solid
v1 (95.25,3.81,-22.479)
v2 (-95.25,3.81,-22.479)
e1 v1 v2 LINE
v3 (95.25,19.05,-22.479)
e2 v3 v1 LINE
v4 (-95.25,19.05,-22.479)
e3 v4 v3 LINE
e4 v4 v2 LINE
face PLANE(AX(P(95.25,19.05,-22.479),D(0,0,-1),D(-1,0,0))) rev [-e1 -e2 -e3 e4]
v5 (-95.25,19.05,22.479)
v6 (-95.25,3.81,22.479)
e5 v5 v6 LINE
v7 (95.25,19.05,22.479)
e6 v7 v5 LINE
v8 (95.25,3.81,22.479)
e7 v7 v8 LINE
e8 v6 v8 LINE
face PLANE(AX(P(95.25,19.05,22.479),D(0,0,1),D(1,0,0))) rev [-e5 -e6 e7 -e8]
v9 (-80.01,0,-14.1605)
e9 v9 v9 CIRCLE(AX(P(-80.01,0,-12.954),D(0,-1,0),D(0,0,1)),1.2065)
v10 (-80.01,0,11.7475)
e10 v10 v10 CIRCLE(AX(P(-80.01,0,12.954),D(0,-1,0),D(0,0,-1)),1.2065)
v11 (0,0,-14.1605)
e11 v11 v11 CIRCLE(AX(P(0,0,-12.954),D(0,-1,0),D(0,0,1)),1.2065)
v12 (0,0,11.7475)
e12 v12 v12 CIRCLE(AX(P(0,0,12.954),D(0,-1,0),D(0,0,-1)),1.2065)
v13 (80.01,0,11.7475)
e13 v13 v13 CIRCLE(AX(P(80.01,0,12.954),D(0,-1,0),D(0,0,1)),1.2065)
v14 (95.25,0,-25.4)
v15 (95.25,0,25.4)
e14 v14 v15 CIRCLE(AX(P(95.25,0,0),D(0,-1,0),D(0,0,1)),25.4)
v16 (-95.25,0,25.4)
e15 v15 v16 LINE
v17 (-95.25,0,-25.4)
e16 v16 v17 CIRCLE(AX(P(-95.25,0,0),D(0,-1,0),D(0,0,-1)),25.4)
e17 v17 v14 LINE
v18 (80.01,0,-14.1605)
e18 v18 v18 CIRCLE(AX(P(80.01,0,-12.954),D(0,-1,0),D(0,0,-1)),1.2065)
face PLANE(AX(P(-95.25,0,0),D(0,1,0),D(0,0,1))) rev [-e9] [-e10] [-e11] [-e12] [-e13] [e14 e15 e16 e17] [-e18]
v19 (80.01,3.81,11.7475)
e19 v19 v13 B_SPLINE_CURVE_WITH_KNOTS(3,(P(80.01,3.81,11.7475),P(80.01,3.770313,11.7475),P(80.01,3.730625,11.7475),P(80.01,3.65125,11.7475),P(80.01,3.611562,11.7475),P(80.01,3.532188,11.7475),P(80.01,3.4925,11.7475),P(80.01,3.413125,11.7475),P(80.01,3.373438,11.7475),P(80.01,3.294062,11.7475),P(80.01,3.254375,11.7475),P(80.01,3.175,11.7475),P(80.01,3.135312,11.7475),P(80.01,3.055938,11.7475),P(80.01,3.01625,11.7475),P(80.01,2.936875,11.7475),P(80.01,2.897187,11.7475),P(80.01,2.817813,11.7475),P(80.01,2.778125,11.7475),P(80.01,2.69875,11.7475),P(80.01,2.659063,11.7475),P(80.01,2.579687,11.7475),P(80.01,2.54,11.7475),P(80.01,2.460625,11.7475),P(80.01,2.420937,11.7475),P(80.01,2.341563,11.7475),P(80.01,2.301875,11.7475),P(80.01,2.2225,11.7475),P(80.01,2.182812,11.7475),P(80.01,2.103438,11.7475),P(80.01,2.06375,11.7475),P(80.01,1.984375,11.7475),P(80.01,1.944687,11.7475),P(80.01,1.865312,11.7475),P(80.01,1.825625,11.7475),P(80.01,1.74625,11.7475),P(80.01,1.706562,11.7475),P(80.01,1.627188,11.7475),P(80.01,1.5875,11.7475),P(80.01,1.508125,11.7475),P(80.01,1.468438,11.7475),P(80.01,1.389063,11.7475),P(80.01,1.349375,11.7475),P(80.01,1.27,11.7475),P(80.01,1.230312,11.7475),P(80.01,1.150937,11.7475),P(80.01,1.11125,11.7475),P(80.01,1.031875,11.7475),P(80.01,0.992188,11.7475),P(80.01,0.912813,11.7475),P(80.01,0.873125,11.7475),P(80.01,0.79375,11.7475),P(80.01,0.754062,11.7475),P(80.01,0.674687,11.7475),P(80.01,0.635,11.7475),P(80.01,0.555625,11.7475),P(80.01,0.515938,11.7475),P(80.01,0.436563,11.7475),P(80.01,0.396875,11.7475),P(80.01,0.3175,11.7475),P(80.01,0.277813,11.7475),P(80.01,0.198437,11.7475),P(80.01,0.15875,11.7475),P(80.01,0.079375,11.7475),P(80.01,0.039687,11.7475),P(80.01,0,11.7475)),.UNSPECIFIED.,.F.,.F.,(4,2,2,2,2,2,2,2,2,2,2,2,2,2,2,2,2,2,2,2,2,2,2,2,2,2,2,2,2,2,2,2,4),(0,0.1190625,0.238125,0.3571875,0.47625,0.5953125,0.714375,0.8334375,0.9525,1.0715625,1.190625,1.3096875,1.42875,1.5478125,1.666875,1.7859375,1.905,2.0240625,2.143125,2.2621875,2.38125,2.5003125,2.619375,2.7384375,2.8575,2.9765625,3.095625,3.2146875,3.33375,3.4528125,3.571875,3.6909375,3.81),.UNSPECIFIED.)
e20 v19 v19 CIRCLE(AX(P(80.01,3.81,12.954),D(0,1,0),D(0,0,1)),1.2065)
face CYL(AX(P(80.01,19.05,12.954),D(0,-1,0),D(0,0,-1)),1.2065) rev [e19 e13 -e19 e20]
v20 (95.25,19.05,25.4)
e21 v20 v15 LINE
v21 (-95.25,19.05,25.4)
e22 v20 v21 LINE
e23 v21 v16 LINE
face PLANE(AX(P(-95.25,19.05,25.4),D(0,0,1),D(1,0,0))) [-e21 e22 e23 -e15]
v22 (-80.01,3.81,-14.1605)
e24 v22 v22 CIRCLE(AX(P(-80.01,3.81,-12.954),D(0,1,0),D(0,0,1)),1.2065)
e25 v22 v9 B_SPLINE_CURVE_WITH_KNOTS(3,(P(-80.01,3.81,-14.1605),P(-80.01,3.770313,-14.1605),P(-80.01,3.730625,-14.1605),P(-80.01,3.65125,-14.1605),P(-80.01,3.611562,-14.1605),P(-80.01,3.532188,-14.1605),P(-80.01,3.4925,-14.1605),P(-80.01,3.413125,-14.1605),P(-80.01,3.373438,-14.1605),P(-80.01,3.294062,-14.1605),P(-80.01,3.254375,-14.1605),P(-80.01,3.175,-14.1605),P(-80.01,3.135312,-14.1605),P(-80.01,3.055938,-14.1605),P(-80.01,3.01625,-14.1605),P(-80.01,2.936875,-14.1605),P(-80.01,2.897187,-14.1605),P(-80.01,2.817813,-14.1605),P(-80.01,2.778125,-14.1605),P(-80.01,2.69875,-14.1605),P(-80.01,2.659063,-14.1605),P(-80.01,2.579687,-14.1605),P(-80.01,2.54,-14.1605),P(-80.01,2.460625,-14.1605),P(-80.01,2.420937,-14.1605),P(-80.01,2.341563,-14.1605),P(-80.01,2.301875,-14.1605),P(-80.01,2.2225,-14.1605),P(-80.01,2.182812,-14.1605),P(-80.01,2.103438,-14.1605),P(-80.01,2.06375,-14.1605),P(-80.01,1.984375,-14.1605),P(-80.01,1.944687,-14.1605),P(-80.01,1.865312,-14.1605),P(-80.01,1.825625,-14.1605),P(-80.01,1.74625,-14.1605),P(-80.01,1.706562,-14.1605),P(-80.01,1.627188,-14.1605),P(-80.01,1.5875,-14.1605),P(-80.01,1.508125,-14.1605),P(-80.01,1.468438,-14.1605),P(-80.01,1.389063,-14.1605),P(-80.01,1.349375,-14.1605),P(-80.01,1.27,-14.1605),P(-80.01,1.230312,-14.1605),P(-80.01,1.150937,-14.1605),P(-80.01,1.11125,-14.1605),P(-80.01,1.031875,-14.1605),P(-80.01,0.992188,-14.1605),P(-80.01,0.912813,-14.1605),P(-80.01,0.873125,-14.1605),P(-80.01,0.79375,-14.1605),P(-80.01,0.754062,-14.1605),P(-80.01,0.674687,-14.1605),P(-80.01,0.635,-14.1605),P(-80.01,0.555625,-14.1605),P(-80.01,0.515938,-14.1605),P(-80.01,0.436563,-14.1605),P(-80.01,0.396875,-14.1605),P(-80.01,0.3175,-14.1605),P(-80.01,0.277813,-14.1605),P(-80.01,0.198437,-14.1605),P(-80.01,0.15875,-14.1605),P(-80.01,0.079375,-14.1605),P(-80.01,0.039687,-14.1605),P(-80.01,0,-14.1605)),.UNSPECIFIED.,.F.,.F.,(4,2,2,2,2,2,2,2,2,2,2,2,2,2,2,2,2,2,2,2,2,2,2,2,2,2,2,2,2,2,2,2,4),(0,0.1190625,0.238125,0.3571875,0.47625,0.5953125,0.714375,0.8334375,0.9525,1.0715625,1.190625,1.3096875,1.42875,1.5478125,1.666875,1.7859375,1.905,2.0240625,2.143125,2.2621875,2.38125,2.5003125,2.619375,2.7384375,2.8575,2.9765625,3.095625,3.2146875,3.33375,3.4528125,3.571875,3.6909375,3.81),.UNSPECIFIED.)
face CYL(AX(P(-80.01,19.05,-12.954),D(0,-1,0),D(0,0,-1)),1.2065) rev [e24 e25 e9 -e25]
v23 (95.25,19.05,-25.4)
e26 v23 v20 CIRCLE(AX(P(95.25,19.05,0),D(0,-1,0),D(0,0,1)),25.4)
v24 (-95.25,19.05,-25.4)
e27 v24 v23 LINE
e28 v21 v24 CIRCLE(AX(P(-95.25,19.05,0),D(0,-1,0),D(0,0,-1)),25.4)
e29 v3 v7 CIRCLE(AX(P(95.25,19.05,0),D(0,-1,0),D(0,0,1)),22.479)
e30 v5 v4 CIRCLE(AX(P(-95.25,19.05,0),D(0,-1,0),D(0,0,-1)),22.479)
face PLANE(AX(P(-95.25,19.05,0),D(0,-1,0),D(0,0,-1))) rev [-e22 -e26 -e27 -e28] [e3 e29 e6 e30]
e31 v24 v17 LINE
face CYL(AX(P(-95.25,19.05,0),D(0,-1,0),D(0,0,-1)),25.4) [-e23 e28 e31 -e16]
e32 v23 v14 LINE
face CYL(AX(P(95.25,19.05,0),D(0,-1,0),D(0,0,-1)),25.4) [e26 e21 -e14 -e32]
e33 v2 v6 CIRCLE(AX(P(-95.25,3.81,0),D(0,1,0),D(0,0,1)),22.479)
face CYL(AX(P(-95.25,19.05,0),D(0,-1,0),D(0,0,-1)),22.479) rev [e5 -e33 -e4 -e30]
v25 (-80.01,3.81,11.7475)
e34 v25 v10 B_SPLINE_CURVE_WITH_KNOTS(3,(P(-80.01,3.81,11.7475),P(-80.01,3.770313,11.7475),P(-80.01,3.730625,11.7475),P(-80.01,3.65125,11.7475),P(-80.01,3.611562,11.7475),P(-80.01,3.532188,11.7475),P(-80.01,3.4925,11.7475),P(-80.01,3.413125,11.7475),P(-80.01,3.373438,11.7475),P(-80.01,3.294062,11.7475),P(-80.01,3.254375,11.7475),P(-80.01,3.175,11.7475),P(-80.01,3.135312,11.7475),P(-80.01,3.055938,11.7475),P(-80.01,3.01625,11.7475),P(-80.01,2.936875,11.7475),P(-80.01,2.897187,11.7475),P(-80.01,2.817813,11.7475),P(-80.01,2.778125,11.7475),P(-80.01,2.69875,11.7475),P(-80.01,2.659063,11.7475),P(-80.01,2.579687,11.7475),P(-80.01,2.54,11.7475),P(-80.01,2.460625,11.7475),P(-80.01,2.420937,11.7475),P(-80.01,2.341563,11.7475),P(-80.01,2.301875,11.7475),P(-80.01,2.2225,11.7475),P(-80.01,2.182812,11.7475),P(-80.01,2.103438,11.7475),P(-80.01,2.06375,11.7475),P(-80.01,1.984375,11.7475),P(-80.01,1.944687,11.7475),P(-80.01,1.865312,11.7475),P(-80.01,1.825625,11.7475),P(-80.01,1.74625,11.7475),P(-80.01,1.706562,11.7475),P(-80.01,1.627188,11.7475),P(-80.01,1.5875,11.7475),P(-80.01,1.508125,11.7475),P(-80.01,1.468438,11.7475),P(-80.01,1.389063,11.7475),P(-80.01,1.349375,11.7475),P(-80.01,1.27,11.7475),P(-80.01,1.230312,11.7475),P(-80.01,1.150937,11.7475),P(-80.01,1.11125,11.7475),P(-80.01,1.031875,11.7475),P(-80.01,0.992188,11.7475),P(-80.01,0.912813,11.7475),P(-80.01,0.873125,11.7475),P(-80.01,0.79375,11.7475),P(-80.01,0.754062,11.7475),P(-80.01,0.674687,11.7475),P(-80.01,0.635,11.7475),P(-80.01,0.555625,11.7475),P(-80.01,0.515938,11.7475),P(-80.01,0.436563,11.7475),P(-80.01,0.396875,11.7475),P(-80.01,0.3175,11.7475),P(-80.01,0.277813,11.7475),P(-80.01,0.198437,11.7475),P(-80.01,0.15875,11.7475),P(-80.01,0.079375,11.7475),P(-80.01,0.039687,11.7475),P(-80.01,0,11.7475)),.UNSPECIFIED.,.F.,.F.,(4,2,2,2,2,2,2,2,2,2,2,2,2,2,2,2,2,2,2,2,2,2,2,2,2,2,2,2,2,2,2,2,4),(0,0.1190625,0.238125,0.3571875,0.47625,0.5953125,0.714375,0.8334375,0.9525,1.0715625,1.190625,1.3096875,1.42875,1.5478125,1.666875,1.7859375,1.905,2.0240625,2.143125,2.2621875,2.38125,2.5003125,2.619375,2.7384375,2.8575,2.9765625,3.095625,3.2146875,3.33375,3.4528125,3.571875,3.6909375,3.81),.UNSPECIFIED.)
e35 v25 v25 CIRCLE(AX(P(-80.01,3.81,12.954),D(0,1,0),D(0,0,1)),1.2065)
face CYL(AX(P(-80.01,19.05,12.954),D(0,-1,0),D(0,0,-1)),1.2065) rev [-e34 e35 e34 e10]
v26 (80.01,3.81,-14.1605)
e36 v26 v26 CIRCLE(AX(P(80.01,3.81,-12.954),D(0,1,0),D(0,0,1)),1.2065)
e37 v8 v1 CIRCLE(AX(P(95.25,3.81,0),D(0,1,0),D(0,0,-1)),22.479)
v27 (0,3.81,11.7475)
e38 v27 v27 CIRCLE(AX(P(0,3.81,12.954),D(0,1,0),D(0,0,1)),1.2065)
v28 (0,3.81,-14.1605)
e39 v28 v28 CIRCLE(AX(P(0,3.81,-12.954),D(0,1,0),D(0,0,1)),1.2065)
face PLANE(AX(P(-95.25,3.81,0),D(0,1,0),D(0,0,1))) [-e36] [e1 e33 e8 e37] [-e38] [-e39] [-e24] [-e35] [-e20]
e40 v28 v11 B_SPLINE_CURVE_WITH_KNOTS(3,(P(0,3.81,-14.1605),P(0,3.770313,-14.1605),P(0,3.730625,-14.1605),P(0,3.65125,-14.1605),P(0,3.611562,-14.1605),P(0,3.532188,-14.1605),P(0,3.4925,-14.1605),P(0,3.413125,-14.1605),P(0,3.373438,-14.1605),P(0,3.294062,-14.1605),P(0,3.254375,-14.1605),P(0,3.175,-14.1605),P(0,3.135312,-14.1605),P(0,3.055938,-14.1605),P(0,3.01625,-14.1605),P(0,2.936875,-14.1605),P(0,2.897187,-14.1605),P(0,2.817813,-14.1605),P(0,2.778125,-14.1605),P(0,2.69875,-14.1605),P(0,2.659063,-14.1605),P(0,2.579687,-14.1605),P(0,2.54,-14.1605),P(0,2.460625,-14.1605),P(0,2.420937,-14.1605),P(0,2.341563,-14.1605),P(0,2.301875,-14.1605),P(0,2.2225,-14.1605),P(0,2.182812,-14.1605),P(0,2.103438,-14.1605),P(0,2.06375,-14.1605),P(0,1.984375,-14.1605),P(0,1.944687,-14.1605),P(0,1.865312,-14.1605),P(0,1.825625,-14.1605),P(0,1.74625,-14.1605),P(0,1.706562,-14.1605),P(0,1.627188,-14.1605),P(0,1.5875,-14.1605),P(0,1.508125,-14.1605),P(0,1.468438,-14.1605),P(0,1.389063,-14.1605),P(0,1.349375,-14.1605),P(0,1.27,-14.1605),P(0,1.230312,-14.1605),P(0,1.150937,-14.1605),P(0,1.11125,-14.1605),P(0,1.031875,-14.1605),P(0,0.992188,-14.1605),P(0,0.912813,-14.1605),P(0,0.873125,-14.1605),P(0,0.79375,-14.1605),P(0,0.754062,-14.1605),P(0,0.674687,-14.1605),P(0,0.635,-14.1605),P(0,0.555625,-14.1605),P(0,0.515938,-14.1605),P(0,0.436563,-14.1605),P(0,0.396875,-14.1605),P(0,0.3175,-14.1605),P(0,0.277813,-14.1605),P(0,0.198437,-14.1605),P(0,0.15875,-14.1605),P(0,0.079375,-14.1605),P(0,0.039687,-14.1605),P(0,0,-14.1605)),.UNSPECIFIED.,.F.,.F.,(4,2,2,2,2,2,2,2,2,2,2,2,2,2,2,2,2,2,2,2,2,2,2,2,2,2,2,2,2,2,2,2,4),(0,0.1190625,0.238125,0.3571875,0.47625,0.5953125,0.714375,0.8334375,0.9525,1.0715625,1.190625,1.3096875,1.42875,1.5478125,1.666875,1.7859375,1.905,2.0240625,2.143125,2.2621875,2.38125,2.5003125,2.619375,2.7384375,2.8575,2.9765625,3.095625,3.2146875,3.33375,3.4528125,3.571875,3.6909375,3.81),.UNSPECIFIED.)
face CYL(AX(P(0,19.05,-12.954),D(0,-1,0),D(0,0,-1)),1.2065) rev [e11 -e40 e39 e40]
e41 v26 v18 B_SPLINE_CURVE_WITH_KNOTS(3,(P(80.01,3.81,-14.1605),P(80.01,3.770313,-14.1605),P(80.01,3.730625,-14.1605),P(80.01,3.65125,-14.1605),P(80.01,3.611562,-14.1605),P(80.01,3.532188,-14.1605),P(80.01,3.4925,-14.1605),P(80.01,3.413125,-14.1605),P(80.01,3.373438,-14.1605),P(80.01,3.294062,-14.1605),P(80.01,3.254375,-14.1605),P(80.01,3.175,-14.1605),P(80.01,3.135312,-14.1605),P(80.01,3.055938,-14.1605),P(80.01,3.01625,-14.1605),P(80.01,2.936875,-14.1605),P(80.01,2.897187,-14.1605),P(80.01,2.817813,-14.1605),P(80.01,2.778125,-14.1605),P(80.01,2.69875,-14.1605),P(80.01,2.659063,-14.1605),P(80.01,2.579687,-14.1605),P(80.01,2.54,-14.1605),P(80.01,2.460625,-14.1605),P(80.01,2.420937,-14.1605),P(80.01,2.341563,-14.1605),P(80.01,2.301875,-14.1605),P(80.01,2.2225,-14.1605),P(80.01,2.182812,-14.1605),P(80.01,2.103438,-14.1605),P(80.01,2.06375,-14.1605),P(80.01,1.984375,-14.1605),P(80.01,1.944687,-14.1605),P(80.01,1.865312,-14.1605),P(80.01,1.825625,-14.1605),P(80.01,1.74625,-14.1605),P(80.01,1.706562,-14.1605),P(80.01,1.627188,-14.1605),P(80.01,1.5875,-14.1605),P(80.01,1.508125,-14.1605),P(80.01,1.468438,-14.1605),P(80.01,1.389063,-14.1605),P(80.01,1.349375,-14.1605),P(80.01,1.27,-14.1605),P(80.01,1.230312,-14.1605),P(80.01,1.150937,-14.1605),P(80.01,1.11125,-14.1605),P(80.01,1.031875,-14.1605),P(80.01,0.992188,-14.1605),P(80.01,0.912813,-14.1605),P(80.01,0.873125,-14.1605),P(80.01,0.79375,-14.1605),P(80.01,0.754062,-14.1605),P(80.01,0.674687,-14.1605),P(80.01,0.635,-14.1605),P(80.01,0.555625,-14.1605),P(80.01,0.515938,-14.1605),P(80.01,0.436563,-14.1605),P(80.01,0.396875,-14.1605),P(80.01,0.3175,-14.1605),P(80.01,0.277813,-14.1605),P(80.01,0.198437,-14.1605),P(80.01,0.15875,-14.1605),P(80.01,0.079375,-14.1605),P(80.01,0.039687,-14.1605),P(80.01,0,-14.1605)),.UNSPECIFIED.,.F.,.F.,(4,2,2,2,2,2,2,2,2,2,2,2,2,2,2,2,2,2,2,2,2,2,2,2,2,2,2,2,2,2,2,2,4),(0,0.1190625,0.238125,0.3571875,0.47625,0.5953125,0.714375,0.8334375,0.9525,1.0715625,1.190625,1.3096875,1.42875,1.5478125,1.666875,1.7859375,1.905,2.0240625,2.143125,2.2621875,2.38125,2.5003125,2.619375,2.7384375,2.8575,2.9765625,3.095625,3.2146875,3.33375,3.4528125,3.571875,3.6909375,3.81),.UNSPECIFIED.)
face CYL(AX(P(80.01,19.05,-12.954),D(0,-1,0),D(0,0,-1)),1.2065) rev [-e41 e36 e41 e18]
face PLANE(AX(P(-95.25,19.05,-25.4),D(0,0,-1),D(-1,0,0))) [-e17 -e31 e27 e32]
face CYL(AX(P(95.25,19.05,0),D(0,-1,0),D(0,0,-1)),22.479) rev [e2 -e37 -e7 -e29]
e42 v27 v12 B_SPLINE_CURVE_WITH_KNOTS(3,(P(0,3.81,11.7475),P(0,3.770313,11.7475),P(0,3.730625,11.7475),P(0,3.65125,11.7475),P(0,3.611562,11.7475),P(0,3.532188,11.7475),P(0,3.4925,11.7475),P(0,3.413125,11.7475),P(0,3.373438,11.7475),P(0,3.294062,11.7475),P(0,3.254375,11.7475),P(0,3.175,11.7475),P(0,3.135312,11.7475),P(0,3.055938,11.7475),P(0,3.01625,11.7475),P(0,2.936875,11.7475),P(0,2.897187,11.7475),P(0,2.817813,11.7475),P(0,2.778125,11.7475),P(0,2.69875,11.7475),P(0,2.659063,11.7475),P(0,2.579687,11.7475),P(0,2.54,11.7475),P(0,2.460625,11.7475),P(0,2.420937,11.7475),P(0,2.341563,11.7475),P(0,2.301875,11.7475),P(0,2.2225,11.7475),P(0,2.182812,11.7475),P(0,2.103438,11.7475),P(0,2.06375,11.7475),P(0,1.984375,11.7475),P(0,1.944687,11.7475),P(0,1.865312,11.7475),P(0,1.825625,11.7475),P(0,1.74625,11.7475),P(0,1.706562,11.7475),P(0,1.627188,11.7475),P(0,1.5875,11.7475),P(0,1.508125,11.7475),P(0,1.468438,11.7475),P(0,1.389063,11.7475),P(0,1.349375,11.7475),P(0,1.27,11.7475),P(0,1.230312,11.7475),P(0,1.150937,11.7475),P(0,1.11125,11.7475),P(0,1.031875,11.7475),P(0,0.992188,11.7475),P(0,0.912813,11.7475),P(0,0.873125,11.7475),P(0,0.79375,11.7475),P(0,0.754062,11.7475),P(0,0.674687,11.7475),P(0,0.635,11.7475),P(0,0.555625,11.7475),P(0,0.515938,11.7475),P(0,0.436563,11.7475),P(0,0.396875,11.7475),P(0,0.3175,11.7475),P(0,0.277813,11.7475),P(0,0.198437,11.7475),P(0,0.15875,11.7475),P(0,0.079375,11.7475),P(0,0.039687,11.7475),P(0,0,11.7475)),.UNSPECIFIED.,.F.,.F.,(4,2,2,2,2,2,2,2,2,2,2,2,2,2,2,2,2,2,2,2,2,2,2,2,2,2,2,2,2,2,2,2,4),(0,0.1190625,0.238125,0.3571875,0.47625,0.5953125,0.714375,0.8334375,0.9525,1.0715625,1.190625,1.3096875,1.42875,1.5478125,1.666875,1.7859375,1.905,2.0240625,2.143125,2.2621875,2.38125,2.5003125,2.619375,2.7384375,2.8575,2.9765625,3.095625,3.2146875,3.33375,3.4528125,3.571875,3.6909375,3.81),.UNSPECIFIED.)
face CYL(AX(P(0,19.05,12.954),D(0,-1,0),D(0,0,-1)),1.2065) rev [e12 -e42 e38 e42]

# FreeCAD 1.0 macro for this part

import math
import FreeCAD as App
import Part
import Sketcher
from FreeCAD import Vector
Q = App.Units.Quantity

doc = App.newDocument("Part")
body = doc.addObject("PartDesign::Body", "Body")

sketch1 = doc.addObject("Sketcher::SketchObject", "Sketch")
body.addObject(sketch1)
sketch1.AttachmentSupport = (doc.XZ_Plane, [""])
sketch1.MapMode = "FlatFace"
sketch1.addGeometry(Part.LineSegment(Vector(95, -22, 0), Vector(-95, -22, 0)), False)
sketch1.addGeometry(Part.ArcOfCircle(Part.Circle(Vector(-95, 0, 0), Vector(0, 0, 1), 22), math.radians(90), math.radians(270)), False)
sketch1.addGeometry(Part.LineSegment(Vector(-95, 22, 0), Vector(95, 22, 0)), False)
sketch1.addGeometry(Part.ArcOfCircle(Part.Circle(Vector(95, 0, 0), Vector(0, 0, 1), 22), math.radians(-90), math.radians(90)), False)
sketch1.addConstraint(Sketcher.Constraint("Tangent", 0, 2, 1, 2))
sketch1.addConstraint(Sketcher.Constraint("Tangent", 1, 1, 2, 1))
sketch1.addConstraint(Sketcher.Constraint("Tangent", 2, 2, 3, 2))
sketch1.addConstraint(Sketcher.Constraint("Tangent", 3, 1, 0, 1))
sketch1.addConstraint(Sketcher.Constraint("Horizontal", 0))
sketch1.addConstraint(Sketcher.Constraint("Horizontal", 2))
sketch1.addConstraint(Sketcher.Constraint("Symmetric", 1, 3, 3, 3, -1, 1))
sketch1.addConstraint(Sketcher.Constraint("DistanceX", 0, 2, 0, 1, Q("7.5 in")))
sketch1.addConstraint(Sketcher.Constraint("Radius", 1, Q("0.885 in")))
pad1 = doc.addObject("PartDesign::Pad", "Pad")
body.addObject(pad1)
pad1.Profile = sketch1
pad1.Length = Q("0.15 in")
pad1.Reversed = True

sketch2 = doc.addObject("Sketcher::SketchObject", "Sketch001")
body.addObject(sketch2)
sketch2.AttachmentSupport = (doc.XZ_Plane, [""])
sketch2.MapMode = "FlatFace"
sketch2.addGeometry(Part.LineSegment(Vector(95, 25, 0), Vector(-95, 25, 0)), False)
sketch2.addGeometry(Part.ArcOfCircle(Part.Circle(Vector(-95, 0, 0), Vector(0, 0, 1), 25), math.radians(90), math.radians(270)), False)
sketch2.addGeometry(Part.LineSegment(Vector(-95, -25, 0), Vector(95, -25, 0)), False)
sketch2.addGeometry(Part.ArcOfCircle(Part.Circle(Vector(95, 0, 0), Vector(0, 0, 1), 25), math.radians(-90), math.radians(90)), False)
sketch2.addGeometry(Part.ArcOfCircle(Part.Circle(Vector(95, 0, 0), Vector(0, 0, 1), 22), math.radians(-90), math.radians(90)), False)
sketch2.addGeometry(Part.LineSegment(Vector(95, -22, 0), Vector(-95, -22, 0)), False)
sketch2.addGeometry(Part.ArcOfCircle(Part.Circle(Vector(-95, 0, 0), Vector(0, 0, 1), 22), math.radians(90), math.radians(270)), False)
sketch2.addGeometry(Part.LineSegment(Vector(-95, 22, 0), Vector(95, 22, 0)), False)
sketch2.addConstraint(Sketcher.Constraint("Tangent", 0, 2, 1, 1))
sketch2.addConstraint(Sketcher.Constraint("Tangent", 1, 2, 2, 1))
sketch2.addConstraint(Sketcher.Constraint("Tangent", 2, 2, 3, 1))
sketch2.addConstraint(Sketcher.Constraint("Tangent", 3, 2, 0, 1))
sketch2.addConstraint(Sketcher.Constraint("Tangent", 4, 1, 5, 1))
sketch2.addConstraint(Sketcher.Constraint("Tangent", 5, 2, 6, 2))
sketch2.addConstraint(Sketcher.Constraint("Tangent", 6, 1, 7, 1))
sketch2.addConstraint(Sketcher.Constraint("Tangent", 7, 2, 4, 2))
sketch2.addConstraint(Sketcher.Constraint("Horizontal", 0))
sketch2.addConstraint(Sketcher.Constraint("Horizontal", 2))
sketch2.addConstraint(Sketcher.Constraint("Horizontal", 5))
sketch2.addConstraint(Sketcher.Constraint("Horizontal", 7))
sketch2.addConstraint(Sketcher.Constraint("Coincident", 4, 3, 3, 3))
sketch2.addConstraint(Sketcher.Constraint("Symmetric", 1, 3, 3, 3, -1, 1))
sketch2.addConstraint(Sketcher.Constraint("Vertical", 6, 3, 0, 2))
sketch2.addConstraint(Sketcher.Constraint("Radius", 1, Q("1 in")))
sketch2.addConstraint(Sketcher.Constraint("DistanceX", 0, 2, 0, 1, Q("7.5 in")))
sketch2.addConstraint(Sketcher.Constraint("Radius", 4, Q("0.885 in")))
pad2 = doc.addObject("PartDesign::Pad", "Pad001")
body.addObject(pad2)
pad2.Profile = sketch2
pad2.Length = Q("0.75 in")
pad2.Reversed = True

sketch3 = doc.addObject("Sketcher::SketchObject", "Sketch002")
body.addObject(sketch3)
sketch3.AttachmentSupport = (doc.XZ_Plane, [""])
sketch3.MapMode = "FlatFace"
sketch3.addGeometry(Part.Circle(Vector(0, 13, 0), Vector(0, 0, 1), 1.2), False)
sketch3.addGeometry(Part.Circle(Vector(-80, 13, 0), Vector(0, 0, 1), 1.2), False)
sketch3.addGeometry(Part.Circle(Vector(80, 13, 0), Vector(0, 0, 1), 1.2), False)
sketch3.addGeometry(Part.Circle(Vector(80, -13, 0), Vector(0, 0, 1), 1.2), False)
sketch3.addGeometry(Part.Circle(Vector(-80, -13, 0), Vector(0, 0, 1), 1.2), False)
sketch3.addGeometry(Part.Circle(Vector(0, -13, 0), Vector(0, 0, 1), 1.2), False)
sketch3.addConstraint(Sketcher.Constraint("Equal", 0, 1))
sketch3.addConstraint(Sketcher.Constraint("Equal", 1, 2))
sketch3.addConstraint(Sketcher.Constraint("Equal", 2, 3))
sketch3.addConstraint(Sketcher.Constraint("Equal", 3, 4))
sketch3.addConstraint(Sketcher.Constraint("Equal", 4, 5))
sketch3.addConstraint(Sketcher.Constraint("Symmetric", 1, 3, 3, 3, -1, 1))
sketch3.addConstraint(Sketcher.Constraint("Symmetric", 2, 3, 4, 3, -1, 1))
sketch3.addConstraint(Sketcher.Constraint("Symmetric", 0, 3, 5, 3, -1, 1))
sketch3.addConstraint(Sketcher.Constraint("Symmetric", 1, 3, 2, 3, -2))
sketch3.addConstraint(Sketcher.Constraint("PointOnObject", 0, 3, -2))
sketch3.addConstraint(Sketcher.Constraint("Horizontal", 0, 3, 1, 3))
sketch3.addConstraint(Sketcher.Constraint("Diameter", 0, Q("0.095 in")))
sketch3.addConstraint(Sketcher.Constraint("DistanceX", 1, 3, 2, 3, Q("6.3 in")))
sketch3.addConstraint(Sketcher.Constraint("DistanceY", -1, 1, 0, 3, Q("0.51 in")))
pocket1 = doc.addObject("PartDesign::Pocket", "Pocket")
body.addObject(pocket1)
pocket1.Profile = sketch3
pocket1.Type = "ThroughAll"

doc.recompute()
